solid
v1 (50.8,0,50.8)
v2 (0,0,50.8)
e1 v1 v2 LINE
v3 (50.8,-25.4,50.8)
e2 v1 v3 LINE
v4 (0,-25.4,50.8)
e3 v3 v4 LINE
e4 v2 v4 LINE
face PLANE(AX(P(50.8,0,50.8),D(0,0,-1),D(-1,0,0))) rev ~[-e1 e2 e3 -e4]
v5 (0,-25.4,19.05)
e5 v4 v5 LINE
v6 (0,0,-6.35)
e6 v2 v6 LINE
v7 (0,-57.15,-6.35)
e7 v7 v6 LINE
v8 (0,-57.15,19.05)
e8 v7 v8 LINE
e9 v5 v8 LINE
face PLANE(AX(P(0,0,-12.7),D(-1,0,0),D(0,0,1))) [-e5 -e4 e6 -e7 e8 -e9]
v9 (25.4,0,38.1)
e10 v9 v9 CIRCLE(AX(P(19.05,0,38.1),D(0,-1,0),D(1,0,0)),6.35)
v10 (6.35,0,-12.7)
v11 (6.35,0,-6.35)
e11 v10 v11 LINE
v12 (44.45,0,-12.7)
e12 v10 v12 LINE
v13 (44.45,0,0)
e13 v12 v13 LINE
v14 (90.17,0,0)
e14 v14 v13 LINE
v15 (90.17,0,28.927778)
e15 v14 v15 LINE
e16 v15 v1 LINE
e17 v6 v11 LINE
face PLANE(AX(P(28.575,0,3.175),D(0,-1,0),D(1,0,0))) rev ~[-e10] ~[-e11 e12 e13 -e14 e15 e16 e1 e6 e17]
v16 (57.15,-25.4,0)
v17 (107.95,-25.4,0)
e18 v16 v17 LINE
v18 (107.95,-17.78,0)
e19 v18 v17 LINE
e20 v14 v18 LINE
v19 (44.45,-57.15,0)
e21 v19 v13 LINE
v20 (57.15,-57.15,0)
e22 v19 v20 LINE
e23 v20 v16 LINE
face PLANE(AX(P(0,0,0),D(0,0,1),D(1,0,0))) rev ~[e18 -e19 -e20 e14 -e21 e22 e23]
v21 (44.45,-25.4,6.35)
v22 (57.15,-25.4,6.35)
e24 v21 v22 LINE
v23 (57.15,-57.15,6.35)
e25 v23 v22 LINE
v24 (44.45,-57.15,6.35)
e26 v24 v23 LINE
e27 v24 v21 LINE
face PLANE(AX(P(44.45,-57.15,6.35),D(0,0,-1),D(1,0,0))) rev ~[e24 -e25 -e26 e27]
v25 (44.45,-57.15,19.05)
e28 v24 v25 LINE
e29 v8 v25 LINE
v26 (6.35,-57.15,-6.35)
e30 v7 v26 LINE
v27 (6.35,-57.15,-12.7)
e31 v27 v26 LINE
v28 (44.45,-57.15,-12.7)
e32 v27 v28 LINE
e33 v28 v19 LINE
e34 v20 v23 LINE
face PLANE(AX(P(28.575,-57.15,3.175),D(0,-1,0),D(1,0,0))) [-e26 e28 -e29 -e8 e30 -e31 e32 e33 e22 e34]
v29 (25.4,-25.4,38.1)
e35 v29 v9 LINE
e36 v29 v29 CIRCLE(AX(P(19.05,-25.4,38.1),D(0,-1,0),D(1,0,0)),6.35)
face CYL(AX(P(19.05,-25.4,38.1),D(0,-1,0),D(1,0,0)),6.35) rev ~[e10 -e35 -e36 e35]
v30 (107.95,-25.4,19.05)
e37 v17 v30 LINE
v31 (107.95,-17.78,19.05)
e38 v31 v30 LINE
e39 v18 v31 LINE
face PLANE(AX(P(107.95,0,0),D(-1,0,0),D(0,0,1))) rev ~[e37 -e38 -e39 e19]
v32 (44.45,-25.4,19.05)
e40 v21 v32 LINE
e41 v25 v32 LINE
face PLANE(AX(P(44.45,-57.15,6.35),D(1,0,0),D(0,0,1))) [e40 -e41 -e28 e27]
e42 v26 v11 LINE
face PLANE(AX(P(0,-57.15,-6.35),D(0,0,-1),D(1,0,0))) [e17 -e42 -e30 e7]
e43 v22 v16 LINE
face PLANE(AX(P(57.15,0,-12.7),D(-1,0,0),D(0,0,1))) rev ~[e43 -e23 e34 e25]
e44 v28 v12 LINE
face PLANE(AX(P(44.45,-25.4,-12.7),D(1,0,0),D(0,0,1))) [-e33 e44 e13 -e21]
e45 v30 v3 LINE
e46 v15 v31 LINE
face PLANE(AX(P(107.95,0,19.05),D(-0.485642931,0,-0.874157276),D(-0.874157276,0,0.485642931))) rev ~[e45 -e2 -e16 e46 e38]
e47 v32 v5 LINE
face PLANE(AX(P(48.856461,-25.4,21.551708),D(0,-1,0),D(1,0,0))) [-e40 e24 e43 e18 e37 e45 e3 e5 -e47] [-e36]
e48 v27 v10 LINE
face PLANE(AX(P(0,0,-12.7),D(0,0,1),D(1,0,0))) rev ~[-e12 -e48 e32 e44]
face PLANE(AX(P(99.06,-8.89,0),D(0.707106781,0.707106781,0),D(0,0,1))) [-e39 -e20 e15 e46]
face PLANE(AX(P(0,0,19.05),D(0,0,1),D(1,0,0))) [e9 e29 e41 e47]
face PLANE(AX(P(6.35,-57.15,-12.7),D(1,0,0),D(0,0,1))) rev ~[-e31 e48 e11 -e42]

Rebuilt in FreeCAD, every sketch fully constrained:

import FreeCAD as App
import Part
import Sketcher
from FreeCAD import Vector
Q = App.Units.Quantity


def edges_at(feature, points):
    """Names of the edges that pass closest to the given points."""
    edges = feature.Shape.Edges
    near = lambda p: min(range(len(edges)), key=lambda i: edges[i].distToShape(Part.Vertex(*p))[0])
    return sorted({f"Edge{near(p) + 1}" for p in points})


def add_polygon(sketch, points):
    """Adds a closed chain of lines whose ends are joined by coincident constraints."""
    first, n = sketch.GeometryCount, len(points)
    for a, b in zip(points, points[1:] + points[:1]):
        sketch.addGeometry(Part.LineSegment(App.Vector(*a, 0), App.Vector(*b, 0)), False)
    for i in range(n):
        sketch.addConstraint(Sketcher.Constraint("Coincident", first + i, 2, first + (i + 1) % n, 1))

doc = App.newDocument("Part")
body = doc.addObject("PartDesign::Body", "Body")

# Sketch on XZ plane
sketch1 = body.newObject("Sketcher::SketchObject", "Sketch")
sketch1.AttachmentSupport = (doc.getObject("XZ_Plane"), [""])
sketch1.MapMode = "FlatFace"
add_polygon(sketch1, [(0, 51), (0, 0), (108, 0), (108, 19), (51, 51)])  # lines 0-4
sketch1.addConstraint([
    Sketcher.Constraint("Vertical", 0),
    Sketcher.Constraint("Horizontal", 1),
    Sketcher.Constraint("Vertical", 2),
    Sketcher.Constraint("Horizontal", 4),
    Sketcher.Constraint("Coincident", 0, 2, -1, 1),
    Sketcher.Constraint("Equal", 4, 0),
    Sketcher.Constraint("DistanceX", 4, 2, 4, 1, Q("2 in")),
    Sketcher.Constraint("DistanceX", 1, 1, 1, 2, Q("4.25 in")),
    Sketcher.Constraint("DistanceY", 2, 1, 2, 2, Q("0.75 in")),
])
pad1 = body.newObject("PartDesign::Pad", "Pad")
pad1.Profile = sketch1
pad1.Length = Q("1 in")

# Sketch on XZ plane
sketch2 = body.newObject("Sketcher::SketchObject", "Sketch001")
sketch2.AttachmentSupport = (doc.getObject("XZ_Plane"), [""])
sketch2.MapMode = "FlatFace"
add_polygon(sketch2, [(0, 19), (0, -13), (57, -13), (57, 19)])  # lines 0-3
sketch2.addConstraint([
    Sketcher.Constraint("Vertical", 0),
    Sketcher.Constraint("Horizontal", 1),
    Sketcher.Constraint("Vertical", 2),
    Sketcher.Constraint("Horizontal", 3),
    Sketcher.Constraint("PointOnObject", 0, 2, -2),
    Sketcher.Constraint("DistanceX", 1, 1, 1, 2, Q("2.25 in")),
    Sketcher.Constraint("DistanceY", 0, 2, 0, 1, Q("1.25 in")),
    Sketcher.Constraint("DistanceY", 0, 2, -1, 1, Q("0.5 in")),
])
pad2 = body.newObject("PartDesign::Pad", "Pad001")
pad2.Profile = sketch2
pad2.Length = Q("2.25 in")

# Sketch on XZ plane
sketch3 = body.newObject("Sketcher::SketchObject", "Sketch002")
sketch3.AttachmentSupport = (doc.getObject("XZ_Plane"), [""])
sketch3.MapMode = "FlatFace"
sketch3.AttachmentOffset = App.Placement(Vector(0, 0, 2.25 * 25.4), App.Rotation())
add_polygon(sketch3, [(0, -6), (0, -13), (6, -13), (6, -6)])  # lines 0-3
sketch3.addConstraint([
    Sketcher.Constraint("Vertical", 0),
    Sketcher.Constraint("Horizontal", 1),
    Sketcher.Constraint("Vertical", 2),
    Sketcher.Constraint("Horizontal", 3),
    Sketcher.Constraint("PointOnObject", 0, 2, -2),
    Sketcher.Constraint("Equal", 3, 0),
    Sketcher.Constraint("DistanceX", 1, 1, 1, 2, Q("0.25 in")),
    Sketcher.Constraint("DistanceY", 0, 2, -1, 1, Q("0.5 in")),
])
pocket1 = body.newObject("PartDesign::Pocket", "Pocket")
pocket1.Profile = sketch3
pocket1.Type = "ThroughAll"

# Sketch on XZ plane
sketch4 = body.newObject("Sketcher::SketchObject", "Sketch003")
sketch4.AttachmentSupport = (doc.getObject("XZ_Plane"), [""])
sketch4.MapMode = "FlatFace"
sketch4.AttachmentOffset = App.Placement(Vector(0, 0, 2.25 * 25.4), App.Rotation())
add_polygon(sketch4, [(44, 19), (44, 6), (57, 6), (57, 19)])  # lines 0-3
add_polygon(sketch4, [(44, 0), (44, -13), (57, -13), (57, 0)])  # lines 4-7
sketch4.addConstraint([
    Sketcher.Constraint("Vertical", 0),
    Sketcher.Constraint("Horizontal", 1),
    Sketcher.Constraint("Vertical", 2),
    Sketcher.Constraint("Horizontal", 3),
    Sketcher.Constraint("Vertical", 4),
    Sketcher.Constraint("Horizontal", 5),
    Sketcher.Constraint("Vertical", 6),
    Sketcher.Constraint("Horizontal", 7),
    Sketcher.Constraint("PointOnObject", 6, 2, -1),
    Sketcher.Constraint("Vertical", 3, 2, 4, 2),
    Sketcher.Constraint("Vertical", 2, 2, 5, 2),
    Sketcher.Constraint("Equal", 7, 0),
    Sketcher.Constraint("Equal", 2, 4),
    Sketcher.Constraint("DistanceX", 1, 1, 1, 2, Q("0.5 in")),
    Sketcher.Constraint("DistanceX", -1, 1, 0, 2, Q("1.75 in")),
    Sketcher.Constraint("DistanceY", -1, 1, 0, 2, Q("0.25 in")),
])
pocket2 = body.newObject("PartDesign::Pocket", "Pocket001")
pocket2.Profile = sketch4
pocket2.Length = Q("1.25 in")

# Sketch on XZ plane
sketch5 = body.newObject("Sketcher::SketchObject", "Sketch004")
sketch5.AttachmentSupport = (doc.getObject("XZ_Plane"), [""])
sketch5.MapMode = "FlatFace"
sketch5.AttachmentOffset = App.Placement(Vector(0, 0, 1 * 25.4), App.Rotation())
add_polygon(sketch5, [(44, 0), (44, -13), (57, -13), (57, 0)])  # lines 0-3
sketch5.addConstraint([
    Sketcher.Constraint("Vertical", 0),
    Sketcher.Constraint("Horizontal", 1),
    Sketcher.Constraint("Vertical", 2),
    Sketcher.Constraint("Horizontal", 3),
    Sketcher.Constraint("PointOnObject", 2, 2, -1),
    Sketcher.Constraint("Equal", 3, 0),
    Sketcher.Constraint("DistanceX", 1, 1, 1, 2, Q("0.5 in")),
    Sketcher.Constraint("DistanceX", -1, 1, 0, 2, Q("1.75 in")),
])
pocket3 = body.newObject("PartDesign::Pocket", "Pocket002")
pocket3.Profile = sketch5
pocket3.Type = "ThroughAll"

# Sketch on XZ plane
sketch6 = body.newObject("Sketcher::SketchObject", "Sketch005")
sketch6.AttachmentSupport = (doc.getObject("XZ_Plane"), [""])
sketch6.MapMode = "FlatFace"
sketch6.AttachmentOffset = App.Placement(Vector(0, 0, 1 * 25.4), App.Rotation())
sketch6.addGeometry(Part.Circle(Vector(19, 38, 0), Vector(0, 0, 1), 6), False)
sketch6.addConstraint([
    Sketcher.Constraint("Diameter", 0, Q("0.5 in")),
    Sketcher.Constraint("DistanceY", -1, 1, 0, 3, Q("1.5 in")),
    Sketcher.Constraint("DistanceX", -1, 1, 0, 3, Q("0.75 in")),
])
pocket4 = body.newObject("PartDesign::Pocket", "Pocket003")
pocket4.Profile = sketch6
pocket4.Type = "ThroughAll"
doc.recompute()

chamfer = body.newObject("PartDesign::Chamfer", "Chamfer")
chamfer.Base = (pocket4, edges_at(pocket4, [(107.95, 0, 9.525)]))
chamfer.Size = Q("0.7 in")

doc.recompute()
